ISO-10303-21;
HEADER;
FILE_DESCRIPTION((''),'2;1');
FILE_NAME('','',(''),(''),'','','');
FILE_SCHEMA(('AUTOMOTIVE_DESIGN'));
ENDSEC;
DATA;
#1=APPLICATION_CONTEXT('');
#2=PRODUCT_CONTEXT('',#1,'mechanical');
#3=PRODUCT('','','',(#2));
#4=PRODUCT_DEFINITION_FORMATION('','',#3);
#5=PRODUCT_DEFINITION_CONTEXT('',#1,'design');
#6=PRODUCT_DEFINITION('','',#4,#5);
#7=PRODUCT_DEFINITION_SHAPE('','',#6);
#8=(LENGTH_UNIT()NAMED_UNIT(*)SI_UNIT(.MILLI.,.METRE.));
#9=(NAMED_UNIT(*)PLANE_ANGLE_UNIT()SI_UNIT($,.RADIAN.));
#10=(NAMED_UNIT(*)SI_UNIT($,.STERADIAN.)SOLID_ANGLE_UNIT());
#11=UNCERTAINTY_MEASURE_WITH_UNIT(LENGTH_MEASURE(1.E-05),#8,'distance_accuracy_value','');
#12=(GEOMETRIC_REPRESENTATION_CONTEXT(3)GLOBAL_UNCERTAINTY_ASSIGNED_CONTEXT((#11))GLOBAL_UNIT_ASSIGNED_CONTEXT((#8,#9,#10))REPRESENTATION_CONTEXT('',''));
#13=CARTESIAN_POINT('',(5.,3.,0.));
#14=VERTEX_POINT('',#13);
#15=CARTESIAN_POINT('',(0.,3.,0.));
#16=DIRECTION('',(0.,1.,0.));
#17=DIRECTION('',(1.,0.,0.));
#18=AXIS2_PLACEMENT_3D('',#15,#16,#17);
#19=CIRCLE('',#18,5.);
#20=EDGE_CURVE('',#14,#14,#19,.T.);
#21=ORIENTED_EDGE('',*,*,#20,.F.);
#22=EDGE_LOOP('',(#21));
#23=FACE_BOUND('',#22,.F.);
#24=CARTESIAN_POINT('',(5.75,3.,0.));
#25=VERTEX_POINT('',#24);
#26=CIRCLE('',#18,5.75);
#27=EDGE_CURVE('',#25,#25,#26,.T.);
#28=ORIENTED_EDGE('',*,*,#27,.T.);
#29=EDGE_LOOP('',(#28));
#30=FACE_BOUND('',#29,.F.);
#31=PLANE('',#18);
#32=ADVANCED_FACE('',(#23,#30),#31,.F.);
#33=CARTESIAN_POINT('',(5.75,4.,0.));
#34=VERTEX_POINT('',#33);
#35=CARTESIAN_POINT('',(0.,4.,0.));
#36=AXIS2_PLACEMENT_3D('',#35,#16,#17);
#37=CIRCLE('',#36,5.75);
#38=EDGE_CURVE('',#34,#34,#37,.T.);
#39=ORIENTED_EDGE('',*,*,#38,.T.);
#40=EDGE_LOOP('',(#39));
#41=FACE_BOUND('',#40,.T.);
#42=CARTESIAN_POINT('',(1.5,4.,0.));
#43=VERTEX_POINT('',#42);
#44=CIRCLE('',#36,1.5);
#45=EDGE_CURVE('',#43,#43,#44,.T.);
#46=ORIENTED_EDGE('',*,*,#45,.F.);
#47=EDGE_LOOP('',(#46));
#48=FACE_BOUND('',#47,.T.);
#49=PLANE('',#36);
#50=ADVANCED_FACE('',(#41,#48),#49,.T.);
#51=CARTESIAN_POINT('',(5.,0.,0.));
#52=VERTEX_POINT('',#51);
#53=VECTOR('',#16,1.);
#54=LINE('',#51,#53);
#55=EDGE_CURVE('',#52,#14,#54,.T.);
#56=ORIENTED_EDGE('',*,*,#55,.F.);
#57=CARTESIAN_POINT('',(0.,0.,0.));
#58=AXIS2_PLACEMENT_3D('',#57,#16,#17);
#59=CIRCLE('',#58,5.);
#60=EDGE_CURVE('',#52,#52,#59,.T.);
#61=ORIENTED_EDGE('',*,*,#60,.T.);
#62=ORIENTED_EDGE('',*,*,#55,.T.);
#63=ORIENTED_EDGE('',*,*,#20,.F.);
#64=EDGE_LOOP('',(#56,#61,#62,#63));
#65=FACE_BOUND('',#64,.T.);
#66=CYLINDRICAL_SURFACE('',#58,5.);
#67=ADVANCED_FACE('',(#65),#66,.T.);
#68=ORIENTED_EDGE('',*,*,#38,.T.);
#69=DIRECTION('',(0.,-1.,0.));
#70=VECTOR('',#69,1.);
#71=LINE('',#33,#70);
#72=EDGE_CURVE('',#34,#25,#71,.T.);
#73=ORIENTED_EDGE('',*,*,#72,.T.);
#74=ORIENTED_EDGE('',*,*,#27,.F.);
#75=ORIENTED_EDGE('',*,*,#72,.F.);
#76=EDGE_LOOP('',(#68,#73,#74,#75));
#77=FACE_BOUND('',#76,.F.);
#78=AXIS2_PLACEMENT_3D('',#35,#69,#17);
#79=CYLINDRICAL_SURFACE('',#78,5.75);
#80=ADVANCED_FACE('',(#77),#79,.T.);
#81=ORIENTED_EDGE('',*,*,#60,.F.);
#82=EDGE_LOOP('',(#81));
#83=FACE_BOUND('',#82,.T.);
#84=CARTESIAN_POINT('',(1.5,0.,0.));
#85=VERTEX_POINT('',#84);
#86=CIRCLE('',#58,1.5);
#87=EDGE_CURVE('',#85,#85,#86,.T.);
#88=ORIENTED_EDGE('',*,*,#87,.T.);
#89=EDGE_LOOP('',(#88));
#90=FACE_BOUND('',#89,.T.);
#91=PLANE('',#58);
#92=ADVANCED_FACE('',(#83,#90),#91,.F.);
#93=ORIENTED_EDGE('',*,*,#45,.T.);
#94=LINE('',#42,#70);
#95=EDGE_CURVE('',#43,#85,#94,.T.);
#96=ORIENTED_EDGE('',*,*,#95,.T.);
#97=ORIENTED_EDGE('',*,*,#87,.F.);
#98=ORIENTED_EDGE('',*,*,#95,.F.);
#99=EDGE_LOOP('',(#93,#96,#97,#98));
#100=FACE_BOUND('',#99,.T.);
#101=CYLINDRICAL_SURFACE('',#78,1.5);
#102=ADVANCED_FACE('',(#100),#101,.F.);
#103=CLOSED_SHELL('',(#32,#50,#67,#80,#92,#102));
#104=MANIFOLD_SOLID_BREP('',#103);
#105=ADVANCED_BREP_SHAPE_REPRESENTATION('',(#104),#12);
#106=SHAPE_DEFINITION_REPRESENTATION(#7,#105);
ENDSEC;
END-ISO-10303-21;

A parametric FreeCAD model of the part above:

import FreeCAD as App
import Part
import Sketcher
from FreeCAD import Vector

doc = App.newDocument("Part")
body = doc.addObject("PartDesign::Body", "Body")

# Sketch on XY plane
sketch1 = body.newObject("Sketcher::SketchObject", "Sketch")
sketch1.AttachmentSupport = (doc.getObject("XY_Plane"), [""])
sketch1.MapMode = "FlatFace"
sketch1.addGeometry(Part.LineSegment(Vector(1.5, 4, 0), Vector(1.5, 0, 0)), False)
sketch1.addGeometry(Part.LineSegment(Vector(1.5, 0, 0), Vector(5, 0, 0)), False)
sketch1.addGeometry(Part.LineSegment(Vector(5, 0, 0), Vector(5, 3, 0)), False)
sketch1.addGeometry(Part.LineSegment(Vector(5, 3, 0), Vector(5.75, 3, 0)), False)
sketch1.addGeometry(Part.LineSegment(Vector(5.75, 3, 0), Vector(5.75, 4, 0)), False)
sketch1.addGeometry(Part.LineSegment(Vector(5.75, 4, 0), Vector(1.5, 4, 0)), False)
sketch1.addConstraint(Sketcher.Constraint("Coincident", 0, 2, 1, 1))
sketch1.addConstraint(Sketcher.Constraint("Coincident", 1, 2, 2, 1))
sketch1.addConstraint(Sketcher.Constraint("Coincident", 2, 2, 3, 1))
sketch1.addConstraint(Sketcher.Constraint("Coincident", 3, 2, 4, 1))
sketch1.addConstraint(Sketcher.Constraint("Coincident", 4, 2, 5, 1))
sketch1.addConstraint(Sketcher.Constraint("Coincident", 5, 2, 0, 1))
sketch1.addConstraint(Sketcher.Constraint("Vertical", 0))
sketch1.addConstraint(Sketcher.Constraint("Horizontal", 1))
sketch1.addConstraint(Sketcher.Constraint("Vertical", 2))
sketch1.addConstraint(Sketcher.Constraint("Horizontal", 3))
sketch1.addConstraint(Sketcher.Constraint("Vertical", 4))
sketch1.addConstraint(Sketcher.Constraint("Horizontal", 5))
sketch1.addConstraint(Sketcher.Constraint("PointOnObject", 0, 2, -1))
sketch1.addConstraint(Sketcher.Constraint("DistanceY", 0, 2, 0, 1, 4.0))
sketch1.addConstraint(Sketcher.Constraint("DistanceY", 4, 1, 4, 2, 1.0))
sketch1.addConstraint(Sketcher.Constraint("DistanceX", -1, 1, 1, 2, 5.0))
sketch1.addConstraint(Sketcher.Constraint("DistanceX", 3, 1, 3, 2, 0.75))
sketch1.addConstraint(Sketcher.Constraint("DistanceX", -1, 1, 0, 2, 1.5))
revolution = body.newObject("PartDesign::Revolution", "Revolution")
revolution.Profile = sketch1
revolution.ReferenceAxis = (sketch1, ["V_Axis"])
revolution.Angle = 360

doc.recompute()
